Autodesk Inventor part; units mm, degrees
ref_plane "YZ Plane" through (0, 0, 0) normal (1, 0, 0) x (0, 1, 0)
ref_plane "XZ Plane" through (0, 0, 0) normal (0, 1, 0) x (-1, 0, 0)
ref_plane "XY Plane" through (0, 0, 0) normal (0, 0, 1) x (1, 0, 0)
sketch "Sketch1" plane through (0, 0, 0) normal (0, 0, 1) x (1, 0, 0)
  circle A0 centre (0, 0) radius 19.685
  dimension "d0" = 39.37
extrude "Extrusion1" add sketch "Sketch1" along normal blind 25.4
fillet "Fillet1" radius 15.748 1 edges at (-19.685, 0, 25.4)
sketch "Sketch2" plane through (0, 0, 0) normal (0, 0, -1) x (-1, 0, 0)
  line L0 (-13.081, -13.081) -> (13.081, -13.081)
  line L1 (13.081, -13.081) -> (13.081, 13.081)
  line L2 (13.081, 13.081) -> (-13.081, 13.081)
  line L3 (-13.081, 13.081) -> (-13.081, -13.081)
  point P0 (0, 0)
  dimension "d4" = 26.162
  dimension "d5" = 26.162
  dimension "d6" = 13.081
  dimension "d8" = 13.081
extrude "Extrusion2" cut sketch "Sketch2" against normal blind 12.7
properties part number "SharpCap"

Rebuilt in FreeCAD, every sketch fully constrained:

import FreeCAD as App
import Part
import Sketcher
Q = App.Units.Quantity


def edges_at(feature, points):
    """Names of the edges that pass closest to the given points."""
    edges = feature.Shape.Edges
    near = lambda p: min(range(len(edges)), key=lambda i: edges[i].distToShape(Part.Vertex(*p))[0])
    return sorted({f"Edge{near(p) + 1}" for p in points})


def add_polygon(sketch, points):
    """Adds a closed chain of lines whose ends are joined by coincident constraints."""
    first, n = sketch.GeometryCount, len(points)
    for a, b in zip(points, points[1:] + points[:1]):
        sketch.addGeometry(Part.LineSegment(App.Vector(*a, 0), App.Vector(*b, 0)), False)
    for i in range(n):
        sketch.addConstraint(Sketcher.Constraint("Coincident", first + i, 2, first + (i + 1) % n, 1))

doc = App.newDocument("Part")
body = doc.addObject("PartDesign::Body", "Body")

# Sketch on XY plane
sketch1 = body.newObject("Sketcher::SketchObject", "Sketch")
sketch1.AttachmentSupport = (doc.getObject("XY_Plane"), [""])
sketch1.MapMode = "FlatFace"
sketch1.addGeometry(Part.Circle(App.Vector(0, 0, 0), App.Vector(0, 0, 1), 20), False)
sketch1.addConstraint([
    Sketcher.Constraint("Coincident", 0, 3, -1, 1),
    Sketcher.Constraint("Diameter", 0, Q("1.55 in")),
])
pad1 = body.newObject("PartDesign::Pad", "Pad")
pad1.Profile = sketch1
pad1.Length = Q("1 in")
doc.recompute()

fillet = body.newObject("PartDesign::Fillet", "Fillet")
fillet.Base = (pad1, edges_at(pad1, [(-19.685, 0, 25.4)]))
fillet.Radius = Q("0.62 in")

# Sketch on XY plane
sketch2 = body.newObject("Sketcher::SketchObject", "Sketch001")
sketch2.AttachmentSupport = (doc.getObject("XY_Plane"), [""])
sketch2.MapMode = "FlatFace"
add_polygon(sketch2, [(13, 13), (13, -13), (-13, -13), (-13, 13)])  # lines 0-3
sketch2.addConstraint([
    Sketcher.Constraint("Vertical", 0),
    Sketcher.Constraint("Horizontal", 1),
    Sketcher.Constraint("Vertical", 2),
    Sketcher.Constraint("Horizontal", 3),
    Sketcher.Constraint("Symmetric", 0, 2, 2, 2, -1, 1),
    Sketcher.Constraint("Equal", 3, 0),
    Sketcher.Constraint("DistanceX", 1, 2, 1, 1, Q("1.03 in")),
])
pocket1 = body.newObject("PartDesign::Pocket", "Pocket")
pocket1.Profile = sketch2
pocket1.Length = Q("0.5 in")
pocket1.Reversed = True

doc.recompute()
